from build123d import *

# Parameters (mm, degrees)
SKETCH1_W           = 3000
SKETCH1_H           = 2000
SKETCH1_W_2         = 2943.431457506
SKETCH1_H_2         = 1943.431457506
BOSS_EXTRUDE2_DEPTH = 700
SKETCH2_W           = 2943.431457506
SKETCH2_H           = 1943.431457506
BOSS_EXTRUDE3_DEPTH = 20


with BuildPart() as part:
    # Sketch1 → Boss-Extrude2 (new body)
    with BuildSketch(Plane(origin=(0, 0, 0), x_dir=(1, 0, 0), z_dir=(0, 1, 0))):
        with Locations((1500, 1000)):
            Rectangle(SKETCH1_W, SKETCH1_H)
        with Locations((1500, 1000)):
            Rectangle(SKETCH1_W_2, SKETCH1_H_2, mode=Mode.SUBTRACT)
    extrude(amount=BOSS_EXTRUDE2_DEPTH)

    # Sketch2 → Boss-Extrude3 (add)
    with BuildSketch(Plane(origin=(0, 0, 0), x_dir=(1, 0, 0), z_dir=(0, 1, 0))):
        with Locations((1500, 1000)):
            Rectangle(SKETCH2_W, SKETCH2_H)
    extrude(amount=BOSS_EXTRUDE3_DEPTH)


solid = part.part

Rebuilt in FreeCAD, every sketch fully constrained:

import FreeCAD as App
import Part
import Sketcher
from FreeCAD import Vector


def add_polygon(sketch, points):
    """Adds a closed chain of lines whose ends are joined by coincident constraints."""
    first, n = sketch.GeometryCount, len(points)
    for a, b in zip(points, points[1:] + points[:1]):
        sketch.addGeometry(Part.LineSegment(App.Vector(*a, 0), App.Vector(*b, 0)), False)
    for i in range(n):
        sketch.addConstraint(Sketcher.Constraint("Coincident", first + i, 2, first + (i + 1) % n, 1))

doc = App.newDocument("Part")
params = doc.addObject("Spreadsheet::Sheet", "Params")
for row, (alias, value) in enumerate([
    ("sketch1_width", "3000 mm"),
    ("sketch1_height", "2000 mm"),
    ("pad1_length", "700 mm"),
    ("pad2_length", "20 mm"),
], start=1):
    params.set(f"A{row}", alias)
    params.set(f"B{row}", "=" + value)
    params.setAlias(f"B{row}", alias)

body = doc.addObject("PartDesign::Body", "Body")

# Sketch on XZ plane
sketch1 = body.newObject("Sketcher::SketchObject", "Sketch")
sketch1.AttachmentSupport = (doc.getObject("XZ_Plane"), [""])
sketch1.MapMode = "FlatFace"
add_polygon(sketch1, [(0, -2000), (0, 0), (3000, 0), (3000, -2000)])  # lines 0-3
add_polygon(sketch1, [(2972, -28), (28, -28), (28, -1972), (2972, -1972)])  # lines 4-7
sketch1.addConstraint([
    Sketcher.Constraint("Vertical", 0),
    Sketcher.Constraint("Horizontal", 1),
    Sketcher.Constraint("Vertical", 2),
    Sketcher.Constraint("Horizontal", 3),
    Sketcher.Constraint("Horizontal", 4),
    Sketcher.Constraint("Vertical", 5),
    Sketcher.Constraint("Horizontal", 6),
    Sketcher.Constraint("Vertical", 7),
    Sketcher.Constraint("Coincident", 0, 2, -1, 1),
    Sketcher.Constraint("DistanceX", 1, 1, 1, 2, 3000.0),
    Sketcher.Constraint("DistanceY", 0, 1, 0, 2, 2000.0),
    Sketcher.Constraint("DistanceX", 4, 2, 4, 1, 2943.431458),
    Sketcher.Constraint("DistanceY", 5, 2, 5, 1, 1943.431458),
    Sketcher.Constraint("DistanceX", -1, 1, 4, 2, 28.284271),
    Sketcher.Constraint("DistanceY", 4, 2, -1, 1, 28.284271),
])
sketch1.setExpression("Constraints[17]", "Params.sketch1_width")
sketch1.setExpression("Constraints[18]", "Params.sketch1_height")
pad1 = body.newObject("PartDesign::Pad", "Pad")
pad1.Profile = sketch1
pad1.setExpression("Length", "Params.pad1_length")
pad1.Reversed = True

# Sketch on XZ plane
sketch2 = body.newObject("Sketcher::SketchObject", "Sketch001")
sketch2.AttachmentSupport = (doc.getObject("XZ_Plane"), [""])
sketch2.MapMode = "FlatFace"
add_polygon(sketch2, [(28, -1972), (28, -28), (2972, -28), (2972, -1972)])  # lines 0-3
sketch2.addConstraint([
    Sketcher.Constraint("Vertical", 0),
    Sketcher.Constraint("Horizontal", 1),
    Sketcher.Constraint("Vertical", 2),
    Sketcher.Constraint("Horizontal", 3),
    Sketcher.Constraint("DistanceX", 1, 1, 1, 2, 2943.431458),
    Sketcher.Constraint("DistanceY", 0, 1, 0, 2, 1943.431458),
    Sketcher.Constraint("DistanceX", -1, 1, 0, 2, 28.284271),
    Sketcher.Constraint("DistanceY", 0, 2, -1, 1, 28.284271),
])
pad2 = body.newObject("PartDesign::Pad", "Pad001")
pad2.Profile = sketch2
pad2.setExpression("Length", "Params.pad2_length")
pad2.Reversed = True

doc.recompute()
